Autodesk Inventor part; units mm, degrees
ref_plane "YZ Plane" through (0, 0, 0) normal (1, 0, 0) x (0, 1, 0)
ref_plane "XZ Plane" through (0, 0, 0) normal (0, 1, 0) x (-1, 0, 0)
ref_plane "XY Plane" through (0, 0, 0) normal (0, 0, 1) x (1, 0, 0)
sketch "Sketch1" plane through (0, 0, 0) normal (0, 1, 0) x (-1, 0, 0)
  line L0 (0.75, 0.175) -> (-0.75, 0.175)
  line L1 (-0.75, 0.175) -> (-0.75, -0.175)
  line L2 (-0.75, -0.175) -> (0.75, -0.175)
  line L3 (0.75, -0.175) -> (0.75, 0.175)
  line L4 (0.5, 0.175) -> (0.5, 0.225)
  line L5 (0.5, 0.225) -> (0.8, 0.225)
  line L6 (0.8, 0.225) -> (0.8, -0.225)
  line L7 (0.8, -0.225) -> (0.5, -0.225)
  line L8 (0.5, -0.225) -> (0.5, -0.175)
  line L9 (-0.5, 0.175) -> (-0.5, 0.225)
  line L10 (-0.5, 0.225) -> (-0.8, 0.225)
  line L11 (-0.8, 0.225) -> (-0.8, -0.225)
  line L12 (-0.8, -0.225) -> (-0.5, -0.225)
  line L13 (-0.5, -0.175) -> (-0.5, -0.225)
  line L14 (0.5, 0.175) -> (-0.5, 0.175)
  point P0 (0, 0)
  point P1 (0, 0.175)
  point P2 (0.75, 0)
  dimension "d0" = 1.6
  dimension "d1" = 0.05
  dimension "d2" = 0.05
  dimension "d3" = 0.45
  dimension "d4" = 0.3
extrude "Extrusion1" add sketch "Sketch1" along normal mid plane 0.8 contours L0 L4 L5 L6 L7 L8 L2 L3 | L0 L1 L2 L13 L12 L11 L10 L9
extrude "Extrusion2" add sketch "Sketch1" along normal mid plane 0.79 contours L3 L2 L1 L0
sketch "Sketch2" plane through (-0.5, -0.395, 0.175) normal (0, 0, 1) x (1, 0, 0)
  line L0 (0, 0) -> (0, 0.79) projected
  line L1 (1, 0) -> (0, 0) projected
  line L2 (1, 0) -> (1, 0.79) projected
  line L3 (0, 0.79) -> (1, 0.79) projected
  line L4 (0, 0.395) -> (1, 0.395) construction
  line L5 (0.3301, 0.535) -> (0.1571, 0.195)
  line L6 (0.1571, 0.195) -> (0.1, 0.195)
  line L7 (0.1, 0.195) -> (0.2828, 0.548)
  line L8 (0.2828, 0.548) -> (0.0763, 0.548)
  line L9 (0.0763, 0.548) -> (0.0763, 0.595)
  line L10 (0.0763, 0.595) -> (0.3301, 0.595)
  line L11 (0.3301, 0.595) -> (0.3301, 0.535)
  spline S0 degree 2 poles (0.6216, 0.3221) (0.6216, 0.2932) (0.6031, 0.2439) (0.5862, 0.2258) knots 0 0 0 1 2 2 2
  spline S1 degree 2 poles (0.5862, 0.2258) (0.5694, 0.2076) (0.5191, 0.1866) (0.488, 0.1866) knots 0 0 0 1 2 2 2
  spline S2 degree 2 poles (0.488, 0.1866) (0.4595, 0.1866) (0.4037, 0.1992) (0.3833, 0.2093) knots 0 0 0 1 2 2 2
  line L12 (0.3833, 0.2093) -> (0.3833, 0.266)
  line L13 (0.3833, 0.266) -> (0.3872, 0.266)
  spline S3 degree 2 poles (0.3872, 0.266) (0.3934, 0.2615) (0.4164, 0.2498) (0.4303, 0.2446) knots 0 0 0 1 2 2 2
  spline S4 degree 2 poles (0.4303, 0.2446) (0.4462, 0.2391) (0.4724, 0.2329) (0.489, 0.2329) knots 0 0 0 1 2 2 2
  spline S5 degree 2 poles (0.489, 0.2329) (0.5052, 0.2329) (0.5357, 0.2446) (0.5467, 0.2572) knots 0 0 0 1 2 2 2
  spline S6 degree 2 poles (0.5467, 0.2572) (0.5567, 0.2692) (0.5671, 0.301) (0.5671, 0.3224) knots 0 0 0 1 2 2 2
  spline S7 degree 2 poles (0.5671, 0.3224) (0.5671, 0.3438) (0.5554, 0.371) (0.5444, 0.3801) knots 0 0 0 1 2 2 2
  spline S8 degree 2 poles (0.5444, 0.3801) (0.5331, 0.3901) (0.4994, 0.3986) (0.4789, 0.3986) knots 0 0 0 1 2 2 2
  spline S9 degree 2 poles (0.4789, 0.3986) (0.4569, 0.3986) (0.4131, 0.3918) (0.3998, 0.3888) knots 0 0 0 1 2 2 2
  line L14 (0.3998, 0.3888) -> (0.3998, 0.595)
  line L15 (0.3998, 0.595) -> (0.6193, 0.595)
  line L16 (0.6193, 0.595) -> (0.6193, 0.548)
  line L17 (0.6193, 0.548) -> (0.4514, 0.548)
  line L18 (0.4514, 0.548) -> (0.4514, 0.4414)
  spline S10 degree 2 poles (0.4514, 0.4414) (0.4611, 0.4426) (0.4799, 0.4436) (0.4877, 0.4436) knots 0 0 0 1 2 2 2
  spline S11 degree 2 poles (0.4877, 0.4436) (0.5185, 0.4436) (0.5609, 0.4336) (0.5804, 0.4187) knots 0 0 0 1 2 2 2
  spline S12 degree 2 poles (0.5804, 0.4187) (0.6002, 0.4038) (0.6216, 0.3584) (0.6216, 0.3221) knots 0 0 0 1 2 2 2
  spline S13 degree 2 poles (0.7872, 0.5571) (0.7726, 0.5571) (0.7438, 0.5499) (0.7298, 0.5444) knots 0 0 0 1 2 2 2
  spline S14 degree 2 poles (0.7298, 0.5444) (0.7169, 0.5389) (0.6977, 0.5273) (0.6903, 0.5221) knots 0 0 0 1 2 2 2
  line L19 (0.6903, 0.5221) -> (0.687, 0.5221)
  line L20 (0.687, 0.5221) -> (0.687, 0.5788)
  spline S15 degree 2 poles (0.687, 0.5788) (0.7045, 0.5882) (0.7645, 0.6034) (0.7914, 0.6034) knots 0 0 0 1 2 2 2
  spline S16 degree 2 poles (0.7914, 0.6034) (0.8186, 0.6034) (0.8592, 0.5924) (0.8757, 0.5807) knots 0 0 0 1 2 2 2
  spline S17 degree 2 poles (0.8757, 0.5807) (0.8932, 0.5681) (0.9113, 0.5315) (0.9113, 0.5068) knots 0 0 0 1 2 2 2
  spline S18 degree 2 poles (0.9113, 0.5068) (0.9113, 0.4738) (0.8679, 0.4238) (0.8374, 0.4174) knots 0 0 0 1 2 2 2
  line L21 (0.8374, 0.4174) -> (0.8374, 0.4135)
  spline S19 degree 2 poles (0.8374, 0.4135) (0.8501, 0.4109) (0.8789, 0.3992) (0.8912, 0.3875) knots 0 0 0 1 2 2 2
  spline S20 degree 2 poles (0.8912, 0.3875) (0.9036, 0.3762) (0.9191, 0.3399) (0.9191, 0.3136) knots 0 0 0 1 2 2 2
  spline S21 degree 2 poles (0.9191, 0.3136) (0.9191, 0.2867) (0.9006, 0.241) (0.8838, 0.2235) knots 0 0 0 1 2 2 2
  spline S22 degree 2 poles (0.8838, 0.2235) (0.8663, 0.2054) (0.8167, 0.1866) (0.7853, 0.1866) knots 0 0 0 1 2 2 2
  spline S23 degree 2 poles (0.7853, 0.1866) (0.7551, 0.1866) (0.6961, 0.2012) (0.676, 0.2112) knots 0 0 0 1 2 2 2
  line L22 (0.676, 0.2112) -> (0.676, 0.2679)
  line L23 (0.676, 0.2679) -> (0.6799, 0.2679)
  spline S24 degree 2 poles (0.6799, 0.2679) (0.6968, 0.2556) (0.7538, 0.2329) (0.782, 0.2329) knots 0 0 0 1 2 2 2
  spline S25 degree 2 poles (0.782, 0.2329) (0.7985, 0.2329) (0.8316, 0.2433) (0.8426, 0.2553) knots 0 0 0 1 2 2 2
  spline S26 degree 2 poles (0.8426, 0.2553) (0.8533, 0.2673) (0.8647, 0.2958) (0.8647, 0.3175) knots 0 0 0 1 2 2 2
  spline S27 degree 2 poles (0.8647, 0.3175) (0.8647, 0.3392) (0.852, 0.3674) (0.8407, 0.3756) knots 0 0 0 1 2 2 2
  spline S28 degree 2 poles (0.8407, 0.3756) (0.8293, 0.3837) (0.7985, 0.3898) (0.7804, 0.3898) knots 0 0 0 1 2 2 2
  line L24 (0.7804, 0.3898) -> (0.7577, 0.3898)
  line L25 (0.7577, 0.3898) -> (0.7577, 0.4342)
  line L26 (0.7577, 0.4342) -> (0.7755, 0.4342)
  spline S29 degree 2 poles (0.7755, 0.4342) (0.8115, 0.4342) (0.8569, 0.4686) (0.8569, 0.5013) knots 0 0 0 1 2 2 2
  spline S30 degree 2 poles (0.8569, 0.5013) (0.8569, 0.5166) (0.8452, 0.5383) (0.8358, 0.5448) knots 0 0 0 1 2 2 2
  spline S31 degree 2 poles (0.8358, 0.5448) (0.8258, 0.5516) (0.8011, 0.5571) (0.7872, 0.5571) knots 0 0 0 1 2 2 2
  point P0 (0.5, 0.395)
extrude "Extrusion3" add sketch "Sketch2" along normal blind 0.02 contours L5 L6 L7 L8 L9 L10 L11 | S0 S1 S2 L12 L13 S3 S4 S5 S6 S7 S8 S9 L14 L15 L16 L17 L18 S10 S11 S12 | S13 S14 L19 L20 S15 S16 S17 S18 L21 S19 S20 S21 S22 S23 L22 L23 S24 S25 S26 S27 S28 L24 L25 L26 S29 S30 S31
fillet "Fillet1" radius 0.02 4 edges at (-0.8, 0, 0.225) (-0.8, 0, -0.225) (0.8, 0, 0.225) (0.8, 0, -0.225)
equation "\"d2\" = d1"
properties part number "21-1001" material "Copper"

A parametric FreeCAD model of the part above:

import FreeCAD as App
import Part
import Sketcher
Q = App.Units.Quantity


def edges_at(feature, points):
    """Names of the edges that pass closest to the given points."""
    edges = feature.Shape.Edges
    near = lambda p: min(range(len(edges)), key=lambda i: edges[i].distToShape(Part.Vertex(*p))[0])
    return sorted({f"Edge{near(p) + 1}" for p in points})


def add_polygon(sketch, points):
    """Adds a closed chain of lines whose ends are joined by coincident constraints."""
    first, n = sketch.GeometryCount, len(points)
    for a, b in zip(points, points[1:] + points[:1]):
        sketch.addGeometry(Part.LineSegment(App.Vector(*a, 0), App.Vector(*b, 0)), False)
    for i in range(n):
        sketch.addConstraint(Sketcher.Constraint("Coincident", first + i, 2, first + (i + 1) % n, 1))

doc = App.newDocument("Part")
body = doc.addObject("PartDesign::Body", "Body")
body.AllowCompound = True

# Sketch on XZ plane
sketch1 = body.newObject("Sketcher::SketchObject", "Sketch")
sketch1.AttachmentSupport = (doc.getObject("XZ_Plane"), [""])
sketch1.MapMode = "FlatFace"
add_polygon(sketch1, [(-0.5, 0.175), (-0.75, 0.175), (-0.75, -0.175), (-0.5, -0.175), (-0.5, -0.225), (-0.8, -0.225), (-0.8, 0.225), (-0.5, 0.225)])  # lines 0-7
add_polygon(sketch1, [(0.75, 0.175), (0.5, 0.175), (0.5, 0.225), (0.8, 0.225), (0.8, -0.225), (0.5, -0.225), (0.5, -0.175), (0.75, -0.175)])  # lines 8-15
sketch1.addConstraint([
    Sketcher.Constraint("Horizontal", 0),
    Sketcher.Constraint("Vertical", 1),
    Sketcher.Constraint("Horizontal", 2),
    Sketcher.Constraint("Vertical", 3),
    Sketcher.Constraint("Horizontal", 4),
    Sketcher.Constraint("Vertical", 5),
    Sketcher.Constraint("Horizontal", 6),
    Sketcher.Constraint("Vertical", 7),
    Sketcher.Constraint("Horizontal", 8),
    Sketcher.Constraint("Vertical", 9),
    Sketcher.Constraint("Horizontal", 10),
    Sketcher.Constraint("Vertical", 11),
    Sketcher.Constraint("Horizontal", 12),
    Sketcher.Constraint("Vertical", 13),
    Sketcher.Constraint("Horizontal", 14),
    Sketcher.Constraint("Vertical", 15),
    Sketcher.Constraint("Symmetric", 2, 2, 8, 2, -1, 1),
    Sketcher.Constraint("Symmetric", 4, 2, 10, 2, -1, 1),
    Sketcher.Constraint("Symmetric", 6, 2, 12, 2, -1, 1),
    Sketcher.Constraint("Symmetric", 0, 2, 14, 2, -1, 1),
    Sketcher.Constraint("Symmetric", 7, 2, 8, 2, -2),
    Sketcher.Constraint("Horizontal", 6, 2, 9, 2),
    Sketcher.Constraint("DistanceX", 4, 2, 4, 1, Q("0.3 mm")),
    Sketcher.Constraint("DistanceY", 3, 2, 3, 1, Q("0.05 mm")),
    Sketcher.Constraint("DistanceY", 5, 1, 5, 2, Q("0.45 mm")),
    Sketcher.Constraint("DistanceX", 4, 2, 1, 2, Q("0.05 mm")),
    Sketcher.Constraint("DistanceX", 7, 2, 8, 2, Q("1 mm")),
])
pad1 = body.newObject("PartDesign::Pad", "Pad")
pad1.Profile = sketch1
pad1.Length = 0.8
pad1.Midplane = True

# Sketch on XZ plane
sketch2 = body.newObject("Sketcher::SketchObject", "Sketch001")
sketch2.AttachmentSupport = (doc.getObject("XZ_Plane"), [""])
sketch2.MapMode = "FlatFace"
add_polygon(sketch2, [(-0.75, -0.175), (-0.75, 0.175), (0.75, 0.175), (0.75, -0.175)])  # lines 0-3
sketch2.addConstraint([
    Sketcher.Constraint("Vertical", 0),
    Sketcher.Constraint("Horizontal", 1),
    Sketcher.Constraint("Vertical", 2),
    Sketcher.Constraint("Horizontal", 3),
    Sketcher.Constraint("Symmetric", 0, 2, 2, 2, -1, 1),
    Sketcher.Constraint("DistanceX", 1, 1, 1, 2, Q("1.5 mm")),
    Sketcher.Constraint("DistanceY", 0, 1, 0, 2, Q("0.35 mm")),
])
pad2 = body.newObject("PartDesign::Pad", "Pad001")
pad2.Profile = sketch2
pad2.Length = 0.79
pad2.Midplane = True

# Sketch on XY plane
sketch3 = body.newObject("Sketcher::SketchObject", "Sketch002")
sketch3.AttachmentSupport = (doc.getObject("XY_Plane"), [""])
sketch3.MapMode = "FlatFace"
sketch3.AttachmentOffset = App.Placement(App.Vector(0, 0, 0.175), App.Rotation())
add_polygon(sketch3, [(-0.3429, -0.2), (-0.1699, 0.14), (-0.1699, 0.2), (-0.4237, 0.2), (-0.4237, 0.153), (-0.2172, 0.153), (-0.4, -0.2)])  # lines 0-6
sketch3.addGeometry(Part.BSplineCurve([App.Vector(0.1216, -0.0729, 0), App.Vector(0.1216, -0.1018, 0), App.Vector(0.1031, -0.1511, 0), App.Vector(0.0862, -0.1692, 0)], [3, 1, 3], [0, 1, 2], False, 2, [1, 1, 1, 1], False), False)  # 7
sketch3.addGeometry(Part.BSplineCurve([App.Vector(0.0804, 0.0237, 0), App.Vector(0.1002, 0.0088, 0), App.Vector(0.1216, -0.0366, 0), App.Vector(0.1216, -0.0729, 0)], [3, 1, 3], [0, 1, 2], False, 2, [1, 1, 1, 1], False), False)  # 8
sketch3.addGeometry(Part.BSplineCurve([App.Vector(-0.0123, 0.0486, 0), App.Vector(0.0185, 0.0486, 0), App.Vector(0.0609, 0.0386, 0), App.Vector(0.0804, 0.0237, 0)], [3, 1, 3], [0, 1, 2], False, 2, [1, 1, 1, 1], False), False)  # 9
sketch3.addGeometry(Part.BSplineCurve([App.Vector(-0.0486, 0.0464, 0), App.Vector(-0.0389, 0.0476, 0), App.Vector(-0.0201, 0.0486, 0), App.Vector(-0.0123, 0.0486, 0)], [3, 1, 3], [0, 1, 2], False, 2, [1, 1, 1, 1], False), False)  # 10
sketch3.addGeometry(Part.LineSegment(App.Vector(-0.0486, 0.0464, 0), App.Vector(-0.0486, 0.153, 0)), False)  # 11
sketch3.addGeometry(Part.LineSegment(App.Vector(-0.0486, 0.153, 0), App.Vector(0.1193, 0.153, 0)), False)  # 12
sketch3.addGeometry(Part.LineSegment(App.Vector(0.1193, 0.153, 0), App.Vector(0.1193, 0.2, 0)), False)  # 13
sketch3.addGeometry(Part.LineSegment(App.Vector(0.1193, 0.2, 0), App.Vector(-0.1002, 0.2, 0)), False)  # 14
sketch3.addGeometry(Part.LineSegment(App.Vector(-0.1002, 0.2, 0), App.Vector(-0.1002, -0.0062, 0)), False)  # 15
sketch3.addGeometry(Part.BSplineCurve([App.Vector(-0.0211, 0.0036, 0), App.Vector(-0.0431, 0.0036, 0), App.Vector(-0.0869, -0.0032, 0), App.Vector(-0.1002, -0.0062, 0)], [3, 1, 3], [0, 1, 2], False, 2, [1, 1, 1, 1], False), False)  # 16
sketch3.addGeometry(Part.BSplineCurve([App.Vector(0.0444, -0.0149, 0), App.Vector(0.0331, -0.0049, 0), App.Vector(-0.0006, 0.0036, 0), App.Vector(-0.0211, 0.0036, 0)], [3, 1, 3], [0, 1, 2], False, 2, [1, 1, 1, 1], False), False)  # 17
sketch3.addGeometry(Part.BSplineCurve([App.Vector(0.0671, -0.0726, 0), App.Vector(0.0671, -0.0512, 0), App.Vector(0.0554, -0.024, 0), App.Vector(0.0444, -0.0149, 0)], [3, 1, 3], [0, 1, 2], False, 2, [1, 1, 1, 1], False), False)  # 18
sketch3.addGeometry(Part.BSplineCurve([App.Vector(0.0467, -0.1378, 0), App.Vector(0.0567, -0.1258, 0), App.Vector(0.0671, -0.094, 0), App.Vector(0.0671, -0.0726, 0)], [3, 1, 3], [0, 1, 2], False, 2, [1, 1, 1, 1], False), False)  # 19
sketch3.addGeometry(Part.BSplineCurve([App.Vector(-0.011, -0.1621, 0), App.Vector(0.0052, -0.1621, 0), App.Vector(0.0357, -0.1504, 0), App.Vector(0.0467, -0.1378, 0)], [3, 1, 3], [0, 1, 2], False, 2, [1, 1, 1, 1], False), False)  # 20
sketch3.addGeometry(Part.BSplineCurve([App.Vector(-0.0697, -0.1504, 0), App.Vector(-0.0538, -0.1559, 0), App.Vector(-0.0276, -0.1621, 0), App.Vector(-0.011, -0.1621, 0)], [3, 1, 3], [0, 1, 2], False, 2, [1, 1, 1, 1], False), False)  # 21
sketch3.addGeometry(Part.BSplineCurve([App.Vector(-0.1128, -0.129, 0), App.Vector(-0.1066, -0.1335, 0), App.Vector(-0.0836, -0.1452, 0), App.Vector(-0.0697, -0.1504, 0)], [3, 1, 3], [0, 1, 2], False, 2, [1, 1, 1, 1], False), False)  # 22
sketch3.addGeometry(Part.LineSegment(App.Vector(-0.1128, -0.129, 0), App.Vector(-0.1167, -0.129, 0)), False)  # 23
sketch3.addGeometry(Part.LineSegment(App.Vector(-0.1167, -0.129, 0), App.Vector(-0.1167, -0.1857, 0)), False)  # 24
sketch3.addGeometry(Part.BSplineCurve([App.Vector(-0.012, -0.2084, 0), App.Vector(-0.0405, -0.2084, 0), App.Vector(-0.0963, -0.1958, 0), App.Vector(-0.1167, -0.1857, 0)], [3, 1, 3], [0, 1, 2], False, 2, [1, 1, 1, 1], False), False)  # 25
sketch3.addGeometry(Part.BSplineCurve([App.Vector(0.0862, -0.1692, 0), App.Vector(0.0694, -0.1874, 0), App.Vector(0.0191, -0.2084, 0), App.Vector(-0.012, -0.2084, 0)], [3, 1, 3], [0, 1, 2], False, 2, [1, 1, 1, 1], False), False)  # 26
sketch3.addGeometry(Part.BSplineCurve([App.Vector(0.2872, 0.1621, 0), App.Vector(0.2726, 0.1621, 0), App.Vector(0.2438, 0.1549, 0), App.Vector(0.2298, 0.1494, 0)], [3, 1, 3], [0, 1, 2], False, 2, [1, 1, 1, 1], False), False)  # 27
sketch3.addGeometry(Part.BSplineCurve([App.Vector(0.3358, 0.1498, 0), App.Vector(0.3258, 0.1566, 0), App.Vector(0.3011, 0.1621, 0), App.Vector(0.2872, 0.1621, 0)], [3, 1, 3], [0, 1, 2], False, 2, [1, 1, 1, 1], False), False)  # 28
sketch3.addGeometry(Part.BSplineCurve([App.Vector(0.3569, 0.1063, 0), App.Vector(0.3569, 0.1216, 0), App.Vector(0.3452, 0.1433, 0), App.Vector(0.3358, 0.1498, 0)], [3, 1, 3], [0, 1, 2], False, 2, [1, 1, 1, 1], False), False)  # 29
sketch3.addGeometry(Part.BSplineCurve([App.Vector(0.2755, 0.0392, 0), App.Vector(0.3115, 0.0392, 0), App.Vector(0.3569, 0.0736, 0), App.Vector(0.3569, 0.1063, 0)], [3, 1, 3], [0, 1, 2], False, 2, [1, 1, 1, 1], False), False)  # 30
sketch3.addGeometry(Part.LineSegment(App.Vector(0.2755, 0.0392, 0), App.Vector(0.2577, 0.0392, 0)), False)  # 31
sketch3.addGeometry(Part.LineSegment(App.Vector(0.2577, 0.0392, 0), App.Vector(0.2577, -0.0052, 0)), False)  # 32
sketch3.addGeometry(Part.LineSegment(App.Vector(0.2577, -0.0052, 0), App.Vector(0.2804, -0.0052, 0)), False)  # 33
sketch3.addGeometry(Part.BSplineCurve([App.Vector(0.3407, -0.0194, 0), App.Vector(0.3293, -0.0113, 0), App.Vector(0.2985, -0.0052, 0), App.Vector(0.2804, -0.0052, 0)], [3, 1, 3], [0, 1, 2], False, 2, [1, 1, 1, 1], False), False)  # 34
sketch3.addGeometry(Part.BSplineCurve([App.Vector(0.3647, -0.0775, 0), App.Vector(0.3647, -0.0558, 0), App.Vector(0.352, -0.0276, 0), App.Vector(0.3407, -0.0194, 0)], [3, 1, 3], [0, 1, 2], False, 2, [1, 1, 1, 1], False), False)  # 35
sketch3.addGeometry(Part.BSplineCurve([App.Vector(0.3426, -0.1397, 0), App.Vector(0.3533, -0.1277, 0), App.Vector(0.3647, -0.0992, 0), App.Vector(0.3647, -0.0775, 0)], [3, 1, 3], [0, 1, 2], False, 2, [1, 1, 1, 1], False), False)  # 36
sketch3.addGeometry(Part.BSplineCurve([App.Vector(0.282, -0.1621, 0), App.Vector(0.2985, -0.1621, 0), App.Vector(0.3316, -0.1517, 0), App.Vector(0.3426, -0.1397, 0)], [3, 1, 3], [0, 1, 2], False, 2, [1, 1, 1, 1], False), False)  # 37
sketch3.addGeometry(Part.BSplineCurve([App.Vector(0.1799, -0.1271, 0), App.Vector(0.1968, -0.1394, 0), App.Vector(0.2538, -0.1621, 0), App.Vector(0.282, -0.1621, 0)], [3, 1, 3], [0, 1, 2], False, 2, [1, 1, 1, 1], False), False)  # 38
sketch3.addGeometry(Part.LineSegment(App.Vector(0.1799, -0.1271, 0), App.Vector(0.176, -0.1271, 0)), False)  # 39
sketch3.addGeometry(Part.LineSegment(App.Vector(0.176, -0.1271, 0), App.Vector(0.176, -0.1838, 0)), False)  # 40
sketch3.addGeometry(Part.BSplineCurve([App.Vector(0.2853, -0.2084, 0), App.Vector(0.2551, -0.2084, 0), App.Vector(0.1961, -0.1938, 0), App.Vector(0.176, -0.1838, 0)], [3, 1, 3], [0, 1, 2], False, 2, [1, 1, 1, 1], False), False)  # 41
sketch3.addGeometry(Part.BSplineCurve([App.Vector(0.3838, -0.1715, 0), App.Vector(0.3663, -0.1896, 0), App.Vector(0.3167, -0.2084, 0), App.Vector(0.2853, -0.2084, 0)], [3, 1, 3], [0, 1, 2], False, 2, [1, 1, 1, 1], False), False)  # 42
sketch3.addGeometry(Part.BSplineCurve([App.Vector(0.4191, -0.0814, 0), App.Vector(0.4191, -0.1083, 0), App.Vector(0.4006, -0.154, 0), App.Vector(0.3838, -0.1715, 0)], [3, 1, 3], [0, 1, 2], False, 2, [1, 1, 1, 1], False), False)  # 43
sketch3.addGeometry(Part.BSplineCurve([App.Vector(0.3912, -0.0075, 0), App.Vector(0.4036, -0.0188, 0), App.Vector(0.4191, -0.0551, 0), App.Vector(0.4191, -0.0814, 0)], [3, 1, 3], [0, 1, 2], False, 2, [1, 1, 1, 1], False), False)  # 44
sketch3.addGeometry(Part.BSplineCurve([App.Vector(0.3374, 0.0185, 0), App.Vector(0.3501, 0.0159, 0), App.Vector(0.3789, 0.0042, 0), App.Vector(0.3912, -0.0075, 0)], [3, 1, 3], [0, 1, 2], False, 2, [1, 1, 1, 1], False), False)  # 45
sketch3.addGeometry(Part.LineSegment(App.Vector(0.3374, 0.0185, 0), App.Vector(0.3374, 0.0224, 0)), False)  # 46
sketch3.addGeometry(Part.BSplineCurve([App.Vector(0.4113, 0.1118, 0), App.Vector(0.4113, 0.0788, 0), App.Vector(0.3679, 0.0288, 0), App.Vector(0.3374, 0.0224, 0)], [3, 1, 3], [0, 1, 2], False, 2, [1, 1, 1, 1], False), False)  # 47
sketch3.addGeometry(Part.BSplineCurve([App.Vector(0.3757, 0.1857, 0), App.Vector(0.3932, 0.1731, 0), App.Vector(0.4113, 0.1365, 0), App.Vector(0.4113, 0.1118, 0)], [3, 1, 3], [0, 1, 2], False, 2, [1, 1, 1, 1], False), False)  # 48
sketch3.addGeometry(Part.BSplineCurve([App.Vector(0.2914, 0.2084, 0), App.Vector(0.3186, 0.2084, 0), App.Vector(0.3592, 0.1974, 0), App.Vector(0.3757, 0.1857, 0)], [3, 1, 3], [0, 1, 2], False, 2, [1, 1, 1, 1], False), False)  # 49
sketch3.addGeometry(Part.BSplineCurve([App.Vector(0.187, 0.1838, 0), App.Vector(0.2045, 0.1932, 0), App.Vector(0.2645, 0.2084, 0), App.Vector(0.2914, 0.2084, 0)], [3, 1, 3], [0, 1, 2], False, 2, [1, 1, 1, 1], False), False)  # 50
sketch3.addGeometry(Part.LineSegment(App.Vector(0.187, 0.1838, 0), App.Vector(0.187, 0.1271, 0)), False)  # 51
sketch3.addGeometry(Part.LineSegment(App.Vector(0.187, 0.1271, 0), App.Vector(0.1903, 0.1271, 0)), False)  # 52
sketch3.addGeometry(Part.BSplineCurve([App.Vector(0.2298, 0.1494, 0), App.Vector(0.2169, 0.1439, 0), App.Vector(0.1977, 0.1323, 0), App.Vector(0.1903, 0.1271, 0)], [3, 1, 3], [0, 1, 2], False, 2, [1, 1, 1, 1], False), False)  # 53
sketch3.addConstraint([
    Sketcher.Constraint("Block", 7),
    Sketcher.Constraint("Block", 8),
    Sketcher.Constraint("Block", 9),
    Sketcher.Constraint("Block", 10),
    Sketcher.Constraint("Block", 16),
    Sketcher.Constraint("Block", 17),
    Sketcher.Constraint("Block", 18),
    Sketcher.Constraint("Block", 19),
    Sketcher.Constraint("Block", 20),
    Sketcher.Constraint("Block", 21),
    Sketcher.Constraint("Block", 22),
    Sketcher.Constraint("Block", 25),
    Sketcher.Constraint("Block", 26),
    Sketcher.Constraint("Block", 27),
    Sketcher.Constraint("Block", 28),
    Sketcher.Constraint("Block", 29),
    Sketcher.Constraint("Block", 30),
    Sketcher.Constraint("Block", 34),
    Sketcher.Constraint("Block", 35),
    Sketcher.Constraint("Block", 36),
    Sketcher.Constraint("Block", 37),
    Sketcher.Constraint("Block", 38),
    Sketcher.Constraint("Block", 41),
    Sketcher.Constraint("Block", 42),
    Sketcher.Constraint("Block", 43),
    Sketcher.Constraint("Block", 44),
    Sketcher.Constraint("Block", 45),
    Sketcher.Constraint("Block", 47),
    Sketcher.Constraint("Block", 48),
    Sketcher.Constraint("Block", 49),
    Sketcher.Constraint("Block", 50),
    Sketcher.Constraint("Block", 53),
    Sketcher.Constraint("Coincident", 10, 1, 11, 1),
    Sketcher.Constraint("Coincident", 11, 2, 12, 1),
    Sketcher.Constraint("Coincident", 12, 2, 13, 1),
    Sketcher.Constraint("Coincident", 13, 2, 14, 1),
    Sketcher.Constraint("Coincident", 14, 2, 15, 1),
    Sketcher.Constraint("Coincident", 15, 2, 16, 2),
    Sketcher.Constraint("Coincident", 22, 1, 23, 1),
    Sketcher.Constraint("Coincident", 23, 2, 24, 1),
    Sketcher.Constraint("Coincident", 24, 2, 25, 2),
    Sketcher.Constraint("Coincident", 30, 1, 31, 1),
    Sketcher.Constraint("Coincident", 31, 2, 32, 1),
    Sketcher.Constraint("Coincident", 32, 2, 33, 1),
    Sketcher.Constraint("Coincident", 33, 2, 34, 2),
    Sketcher.Constraint("Coincident", 38, 1, 39, 1),
    Sketcher.Constraint("Coincident", 39, 2, 40, 1),
    Sketcher.Constraint("Coincident", 40, 2, 41, 2),
    Sketcher.Constraint("Coincident", 45, 1, 46, 1),
    Sketcher.Constraint("Coincident", 46, 2, 47, 2),
    Sketcher.Constraint("Coincident", 50, 1, 51, 1),
    Sketcher.Constraint("Coincident", 51, 2, 52, 1),
    Sketcher.Constraint("Coincident", 52, 2, 53, 2),
    Sketcher.Constraint("Vertical", 1),
    Sketcher.Constraint("Horizontal", 2),
    Sketcher.Constraint("Vertical", 3),
    Sketcher.Constraint("Horizontal", 4),
    Sketcher.Constraint("Horizontal", 6),
    Sketcher.Constraint("Vertical", 11),
    Sketcher.Constraint("Horizontal", 12),
    Sketcher.Constraint("Vertical", 13),
    Sketcher.Constraint("Horizontal", 14),
    Sketcher.Constraint("Vertical", 15),
    Sketcher.Constraint("Horizontal", 23),
    Sketcher.Constraint("Vertical", 24),
    Sketcher.Constraint("Horizontal", 31),
    Sketcher.Constraint("Vertical", 32),
    Sketcher.Constraint("Horizontal", 33),
    Sketcher.Constraint("Horizontal", 39),
    Sketcher.Constraint("Vertical", 40),
    Sketcher.Constraint("Vertical", 51),
    Sketcher.Constraint("Horizontal", 52),
    Sketcher.Constraint("Horizontal", 4, 2, 11, 2),
    Sketcher.Constraint("Horizontal", 2, 2, 13, 2),
    Sketcher.Constraint("DistanceY", 1, 1, 1, 2, Q("0.06 mm")),
    Sketcher.Constraint("DistanceY", -1, 1, 1, 2, Q("0.2 mm")),
    Sketcher.Constraint("DistanceX", 5, 2, -1, 1, Q("0.4 mm")),
    Sketcher.Constraint("DistanceY", 5, 2, -1, 1, Q("0.2 mm")),
    Sketcher.Constraint("DistanceX", 6, 1, 6, 2, Q("0.057 mm")),
    Sketcher.Constraint("DistanceX", 12, 1, 12, 2, Q("0.168 mm")),
    Sketcher.Constraint("DistanceY", 3, 2, 3, 1, Q("0.047 mm")),
    Sketcher.Constraint("DistanceX", 0, 2, -1, 1, Q("0.17 mm")),
    Sketcher.Constraint("DistanceX", 2, 2, 2, 1, Q("0.2538 mm")),
    Sketcher.Constraint("DistanceX", 4, 1, 4, 2, Q("0.2065 mm")),
    Sketcher.Constraint("DistanceX", 31, 2, 31, 1, Q("0.0178 mm")),
])
pad3 = body.newObject("PartDesign::Pad", "Pad002")
pad3.Profile = sketch3
pad3.Length = 0.02
doc.recompute()

fillet = body.newObject("PartDesign::Fillet", "Fillet")
fillet.Base = (pad3, edges_at(pad3, [
    (-0.8, 0, 0.225),
    (-0.8, 0, -0.225),
    (0.8, 0, 0.225),
    (0.8, 0, -0.225),
]))
fillet.Radius = 0.02

doc.recompute()
